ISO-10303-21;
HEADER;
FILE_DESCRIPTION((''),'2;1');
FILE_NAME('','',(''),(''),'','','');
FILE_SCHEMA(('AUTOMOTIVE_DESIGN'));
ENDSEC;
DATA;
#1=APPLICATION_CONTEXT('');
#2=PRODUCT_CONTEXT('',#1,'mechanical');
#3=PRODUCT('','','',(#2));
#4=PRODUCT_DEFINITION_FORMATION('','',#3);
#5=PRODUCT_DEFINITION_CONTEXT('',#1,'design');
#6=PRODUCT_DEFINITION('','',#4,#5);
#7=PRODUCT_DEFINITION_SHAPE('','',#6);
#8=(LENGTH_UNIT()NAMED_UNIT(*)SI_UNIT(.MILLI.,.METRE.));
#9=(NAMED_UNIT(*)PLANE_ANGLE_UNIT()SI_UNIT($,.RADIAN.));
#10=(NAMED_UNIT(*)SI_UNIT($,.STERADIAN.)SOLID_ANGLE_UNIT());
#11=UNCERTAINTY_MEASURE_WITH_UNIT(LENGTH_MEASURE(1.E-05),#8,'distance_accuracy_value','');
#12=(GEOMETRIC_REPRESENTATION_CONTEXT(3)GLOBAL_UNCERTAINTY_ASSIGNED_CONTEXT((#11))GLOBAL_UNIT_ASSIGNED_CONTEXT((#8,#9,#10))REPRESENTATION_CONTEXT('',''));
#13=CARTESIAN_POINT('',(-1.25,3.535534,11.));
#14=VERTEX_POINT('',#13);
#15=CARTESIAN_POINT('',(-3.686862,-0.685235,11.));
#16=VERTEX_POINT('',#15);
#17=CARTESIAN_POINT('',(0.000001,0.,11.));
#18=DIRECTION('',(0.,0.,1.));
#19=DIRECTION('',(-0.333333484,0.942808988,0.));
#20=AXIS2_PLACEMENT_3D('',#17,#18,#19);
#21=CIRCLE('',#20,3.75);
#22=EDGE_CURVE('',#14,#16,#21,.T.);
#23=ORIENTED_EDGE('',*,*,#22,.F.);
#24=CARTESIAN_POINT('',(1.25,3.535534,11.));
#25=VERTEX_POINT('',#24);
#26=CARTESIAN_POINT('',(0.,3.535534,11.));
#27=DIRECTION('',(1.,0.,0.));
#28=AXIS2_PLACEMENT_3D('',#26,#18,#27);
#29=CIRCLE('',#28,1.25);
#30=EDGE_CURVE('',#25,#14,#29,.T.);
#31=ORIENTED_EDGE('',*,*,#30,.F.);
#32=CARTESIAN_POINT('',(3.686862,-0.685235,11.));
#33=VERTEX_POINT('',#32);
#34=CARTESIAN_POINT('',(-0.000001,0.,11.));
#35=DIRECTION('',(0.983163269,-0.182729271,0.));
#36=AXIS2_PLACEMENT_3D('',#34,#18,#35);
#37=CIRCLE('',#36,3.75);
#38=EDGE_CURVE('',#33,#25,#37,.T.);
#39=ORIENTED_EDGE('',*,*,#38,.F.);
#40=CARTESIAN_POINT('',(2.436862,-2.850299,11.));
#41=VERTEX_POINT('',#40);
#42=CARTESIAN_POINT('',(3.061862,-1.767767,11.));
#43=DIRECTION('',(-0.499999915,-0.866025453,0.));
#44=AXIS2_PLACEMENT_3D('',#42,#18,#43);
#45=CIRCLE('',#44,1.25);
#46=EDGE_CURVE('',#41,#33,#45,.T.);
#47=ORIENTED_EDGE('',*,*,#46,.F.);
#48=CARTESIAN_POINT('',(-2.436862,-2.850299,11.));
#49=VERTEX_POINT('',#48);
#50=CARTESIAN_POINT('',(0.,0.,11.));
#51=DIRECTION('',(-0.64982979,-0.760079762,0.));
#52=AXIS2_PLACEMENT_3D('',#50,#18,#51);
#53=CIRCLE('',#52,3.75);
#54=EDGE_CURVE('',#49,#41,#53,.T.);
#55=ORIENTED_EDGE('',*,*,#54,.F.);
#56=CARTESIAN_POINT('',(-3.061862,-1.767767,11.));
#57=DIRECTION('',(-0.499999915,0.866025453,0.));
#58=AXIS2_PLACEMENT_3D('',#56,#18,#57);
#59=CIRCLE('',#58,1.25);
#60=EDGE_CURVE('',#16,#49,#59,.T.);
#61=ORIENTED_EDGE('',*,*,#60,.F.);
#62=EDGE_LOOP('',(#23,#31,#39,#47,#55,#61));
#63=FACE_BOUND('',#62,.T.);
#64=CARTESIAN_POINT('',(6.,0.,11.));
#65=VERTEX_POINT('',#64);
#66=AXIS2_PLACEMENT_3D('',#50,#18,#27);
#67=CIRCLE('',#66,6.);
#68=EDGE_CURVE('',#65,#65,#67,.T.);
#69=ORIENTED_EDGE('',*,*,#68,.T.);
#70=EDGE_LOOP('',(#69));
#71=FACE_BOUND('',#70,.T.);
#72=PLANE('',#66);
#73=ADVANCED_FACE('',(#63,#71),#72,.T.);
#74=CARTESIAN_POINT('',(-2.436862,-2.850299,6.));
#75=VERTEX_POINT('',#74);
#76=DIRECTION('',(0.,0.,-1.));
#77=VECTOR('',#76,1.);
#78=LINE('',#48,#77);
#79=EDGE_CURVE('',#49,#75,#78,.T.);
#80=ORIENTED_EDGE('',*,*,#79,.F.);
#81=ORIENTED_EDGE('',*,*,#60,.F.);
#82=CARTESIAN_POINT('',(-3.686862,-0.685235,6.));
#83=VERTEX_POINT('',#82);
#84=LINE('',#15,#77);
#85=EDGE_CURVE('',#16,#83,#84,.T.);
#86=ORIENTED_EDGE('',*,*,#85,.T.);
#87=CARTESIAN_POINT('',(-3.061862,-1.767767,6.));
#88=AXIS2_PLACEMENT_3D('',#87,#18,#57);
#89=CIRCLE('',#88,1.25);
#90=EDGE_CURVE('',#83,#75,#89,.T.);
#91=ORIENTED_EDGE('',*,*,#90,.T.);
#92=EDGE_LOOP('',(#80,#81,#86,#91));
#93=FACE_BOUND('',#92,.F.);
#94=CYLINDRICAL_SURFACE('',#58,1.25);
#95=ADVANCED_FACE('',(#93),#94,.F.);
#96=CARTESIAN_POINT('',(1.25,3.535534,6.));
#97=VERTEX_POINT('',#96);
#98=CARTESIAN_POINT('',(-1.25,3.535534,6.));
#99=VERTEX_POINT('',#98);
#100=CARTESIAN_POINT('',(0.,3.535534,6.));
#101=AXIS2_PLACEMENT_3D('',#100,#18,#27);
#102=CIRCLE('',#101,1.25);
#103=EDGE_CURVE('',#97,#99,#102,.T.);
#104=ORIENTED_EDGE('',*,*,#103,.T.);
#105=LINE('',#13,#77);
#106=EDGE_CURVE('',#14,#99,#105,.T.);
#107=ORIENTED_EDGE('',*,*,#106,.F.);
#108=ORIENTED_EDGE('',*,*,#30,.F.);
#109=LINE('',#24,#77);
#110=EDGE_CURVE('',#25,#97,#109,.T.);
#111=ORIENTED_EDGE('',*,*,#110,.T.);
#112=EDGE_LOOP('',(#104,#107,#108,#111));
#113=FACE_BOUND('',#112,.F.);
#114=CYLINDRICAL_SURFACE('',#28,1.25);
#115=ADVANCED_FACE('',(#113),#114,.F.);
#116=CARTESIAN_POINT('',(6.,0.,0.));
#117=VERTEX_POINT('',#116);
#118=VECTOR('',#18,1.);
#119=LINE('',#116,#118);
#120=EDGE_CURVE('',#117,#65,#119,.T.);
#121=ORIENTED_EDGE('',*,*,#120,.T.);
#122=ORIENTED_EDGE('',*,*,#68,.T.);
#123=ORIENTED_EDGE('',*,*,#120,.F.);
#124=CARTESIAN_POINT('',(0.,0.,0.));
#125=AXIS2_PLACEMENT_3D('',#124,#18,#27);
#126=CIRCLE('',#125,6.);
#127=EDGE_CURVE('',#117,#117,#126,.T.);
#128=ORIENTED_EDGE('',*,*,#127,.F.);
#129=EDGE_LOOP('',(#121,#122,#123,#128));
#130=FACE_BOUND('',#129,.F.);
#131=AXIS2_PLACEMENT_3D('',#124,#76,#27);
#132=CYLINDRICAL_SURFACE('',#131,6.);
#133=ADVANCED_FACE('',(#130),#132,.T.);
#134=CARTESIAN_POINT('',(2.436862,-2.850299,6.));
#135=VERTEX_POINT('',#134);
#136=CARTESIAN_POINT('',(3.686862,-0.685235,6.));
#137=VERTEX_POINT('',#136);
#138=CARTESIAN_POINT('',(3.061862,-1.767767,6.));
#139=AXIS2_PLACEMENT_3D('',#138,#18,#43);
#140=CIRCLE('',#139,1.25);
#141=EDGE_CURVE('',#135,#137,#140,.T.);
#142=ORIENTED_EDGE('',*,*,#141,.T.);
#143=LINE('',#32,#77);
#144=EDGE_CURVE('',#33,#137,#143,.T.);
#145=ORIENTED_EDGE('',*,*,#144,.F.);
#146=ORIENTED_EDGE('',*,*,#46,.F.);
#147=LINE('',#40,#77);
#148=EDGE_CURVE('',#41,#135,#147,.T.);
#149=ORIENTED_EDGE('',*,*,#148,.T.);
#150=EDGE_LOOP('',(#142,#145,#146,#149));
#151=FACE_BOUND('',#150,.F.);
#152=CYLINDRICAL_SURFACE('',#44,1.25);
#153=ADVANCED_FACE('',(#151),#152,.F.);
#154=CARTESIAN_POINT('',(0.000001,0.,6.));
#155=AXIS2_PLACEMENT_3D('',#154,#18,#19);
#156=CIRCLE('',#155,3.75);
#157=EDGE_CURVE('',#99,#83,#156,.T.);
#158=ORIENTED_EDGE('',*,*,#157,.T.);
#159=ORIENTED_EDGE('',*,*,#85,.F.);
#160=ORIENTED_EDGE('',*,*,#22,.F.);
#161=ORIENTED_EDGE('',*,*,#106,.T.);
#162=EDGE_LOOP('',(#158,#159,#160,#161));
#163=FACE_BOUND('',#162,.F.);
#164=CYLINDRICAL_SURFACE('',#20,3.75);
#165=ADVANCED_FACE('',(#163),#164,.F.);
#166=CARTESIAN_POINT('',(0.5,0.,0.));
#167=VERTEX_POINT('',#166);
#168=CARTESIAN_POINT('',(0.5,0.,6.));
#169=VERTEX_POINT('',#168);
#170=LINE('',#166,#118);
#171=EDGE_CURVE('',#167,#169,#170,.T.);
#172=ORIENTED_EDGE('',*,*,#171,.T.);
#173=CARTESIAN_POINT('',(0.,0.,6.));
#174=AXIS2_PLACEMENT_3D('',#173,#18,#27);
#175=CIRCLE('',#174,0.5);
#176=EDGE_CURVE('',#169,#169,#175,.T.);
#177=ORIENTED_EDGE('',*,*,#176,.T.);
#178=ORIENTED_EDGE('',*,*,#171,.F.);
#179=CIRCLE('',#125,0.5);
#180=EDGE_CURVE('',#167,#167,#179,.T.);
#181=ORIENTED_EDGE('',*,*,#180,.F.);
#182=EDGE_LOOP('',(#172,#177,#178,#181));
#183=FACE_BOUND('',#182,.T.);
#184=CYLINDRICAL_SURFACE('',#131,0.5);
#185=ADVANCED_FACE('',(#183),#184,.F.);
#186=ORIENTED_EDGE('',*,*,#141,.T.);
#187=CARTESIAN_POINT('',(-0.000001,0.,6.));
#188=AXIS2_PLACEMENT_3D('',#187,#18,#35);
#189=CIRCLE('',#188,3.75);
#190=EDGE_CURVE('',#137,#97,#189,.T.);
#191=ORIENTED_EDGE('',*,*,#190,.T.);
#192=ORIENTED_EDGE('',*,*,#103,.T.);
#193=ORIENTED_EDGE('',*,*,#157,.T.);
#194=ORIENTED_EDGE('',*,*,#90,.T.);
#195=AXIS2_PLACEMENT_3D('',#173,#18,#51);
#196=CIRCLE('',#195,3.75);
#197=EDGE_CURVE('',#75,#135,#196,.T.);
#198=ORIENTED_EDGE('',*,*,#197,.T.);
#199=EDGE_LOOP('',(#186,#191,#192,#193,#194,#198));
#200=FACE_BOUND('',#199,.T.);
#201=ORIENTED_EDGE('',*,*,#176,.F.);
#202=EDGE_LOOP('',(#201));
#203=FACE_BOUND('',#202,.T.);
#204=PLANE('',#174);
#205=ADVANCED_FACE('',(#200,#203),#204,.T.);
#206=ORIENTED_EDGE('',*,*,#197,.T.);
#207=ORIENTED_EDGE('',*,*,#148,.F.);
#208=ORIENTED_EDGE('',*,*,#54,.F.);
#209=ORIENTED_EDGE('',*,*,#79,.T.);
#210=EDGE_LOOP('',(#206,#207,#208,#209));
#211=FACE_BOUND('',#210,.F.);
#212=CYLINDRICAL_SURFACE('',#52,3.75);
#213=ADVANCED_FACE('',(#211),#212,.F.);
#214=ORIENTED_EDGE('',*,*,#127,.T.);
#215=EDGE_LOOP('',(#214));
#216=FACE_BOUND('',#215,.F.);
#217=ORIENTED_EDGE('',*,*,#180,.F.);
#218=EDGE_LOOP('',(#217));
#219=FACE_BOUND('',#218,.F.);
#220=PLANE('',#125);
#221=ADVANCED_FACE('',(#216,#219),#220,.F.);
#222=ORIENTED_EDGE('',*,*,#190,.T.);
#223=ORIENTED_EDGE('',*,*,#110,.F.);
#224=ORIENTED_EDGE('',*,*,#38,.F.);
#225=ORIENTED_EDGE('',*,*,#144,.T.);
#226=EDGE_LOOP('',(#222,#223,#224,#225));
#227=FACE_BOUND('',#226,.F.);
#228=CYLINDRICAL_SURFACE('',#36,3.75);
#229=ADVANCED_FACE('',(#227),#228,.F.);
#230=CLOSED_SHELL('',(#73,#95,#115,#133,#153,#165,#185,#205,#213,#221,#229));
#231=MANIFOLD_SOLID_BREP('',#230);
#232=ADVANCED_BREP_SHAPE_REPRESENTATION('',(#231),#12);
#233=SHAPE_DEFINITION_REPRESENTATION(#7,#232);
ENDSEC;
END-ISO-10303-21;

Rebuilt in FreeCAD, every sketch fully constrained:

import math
import FreeCAD as App
import Part
import Sketcher
from FreeCAD import Vector
Q = App.Units.Quantity

doc = App.newDocument("Part")
params = doc.addObject("Spreadsheet::Sheet", "Params")
for row, (alias, value) in enumerate([
    ("sketch1_diameter", "12 mm"),
    ("sketch1_diameter2", "1 mm"),
    ("pad1_length", "11 mm"),
    ("sketch2_diameter", "1 mm"),
    ("sketch2_radius", "3.75 mm"),
    ("sketch2_radius2", "1.25 mm"),
    ("pocket1_length", "5 mm"),
], start=1):
    params.set(f"A{row}", alias)
    params.set(f"B{row}", "=" + value)
    params.setAlias(f"B{row}", alias)

body = doc.addObject("PartDesign::Body", "Body")

# Sketch on XY plane
sketch1 = body.newObject("Sketcher::SketchObject", "Sketch")
sketch1.AttachmentSupport = (doc.getObject("XY_Plane"), [""])
sketch1.MapMode = "FlatFace"
sketch1.addGeometry([
    Part.Circle(Vector(0, 0, 0), Vector(0, 0, 1), 6),
    Part.Circle(Vector(0, 0, 0), Vector(0, 0, 1), 0.5),
], False)
sketch1.addConstraint([
    Sketcher.Constraint("Coincident", 0, 3, -1, 1),
    Sketcher.Constraint("Coincident", 1, 3, -1, 1),
    Sketcher.Constraint("Diameter", 0, Q("12 mm")),
    Sketcher.Constraint("Diameter", 1, Q("1 mm")),
])
sketch1.setExpression("Constraints[2]", "Params.sketch1_diameter")
sketch1.setExpression("Constraints[3]", "Params.sketch1_diameter2")
pad1 = body.newObject("PartDesign::Pad", "Pad")
pad1.Profile = sketch1
pad1.setExpression("Length", "Params.pad1_length")

# Sketch on XY plane
sketch2 = body.newObject("Sketcher::SketchObject", "Sketch001")
sketch2.AttachmentSupport = (doc.getObject("XY_Plane"), [""])
sketch2.MapMode = "FlatFace"
sketch2.AttachmentOffset = App.Placement(Vector(0, 0, 11), App.Rotation())
sketch2.addGeometry([
    Part.ArcOfCircle(Part.Circle(Vector(0, 0, 0), Vector(0, 0, 1), 3.8), math.radians(109), math.radians(191)),  # 0
    Part.ArcOfCircle(Part.Circle(Vector(-3.1, -1.8, 0), Vector(0, 0, 1), 1.3), math.radians(120), math.radians(300)),  # 1
    Part.ArcOfCircle(Part.Circle(Vector(0, 0, 0), Vector(0, 0, 1), 3.8), math.radians(-131), math.radians(-49)),  # 2
    Part.ArcOfCircle(Part.Circle(Vector(3.1, -1.8, 0), Vector(0, 0, 1), 1.3), math.radians(-120), math.radians(60)),  # 3
    Part.ArcOfCircle(Part.Circle(Vector(0, 0, 0), Vector(0, 0, 1), 3.8), math.radians(-11), math.radians(71)),  # 4
    Part.ArcOfCircle(Part.Circle(Vector(0, 3.5, 0), Vector(0, 0, 1), 1.2), math.radians(0), math.radians(180)),  # 5
    Part.Circle(Vector(0, 0, 0), Vector(0, 0, 1), 0.5),  # 6
], False)
sketch2.addConstraint([
    Sketcher.Constraint("Coincident", 0, 2, 1, 1),
    Sketcher.Constraint("Coincident", 1, 2, 2, 1),
    Sketcher.Constraint("Coincident", 2, 2, 3, 1),
    Sketcher.Constraint("Coincident", 3, 2, 4, 1),
    Sketcher.Constraint("Coincident", 4, 2, 5, 1),
    Sketcher.Constraint("Coincident", 5, 2, 0, 1),
    Sketcher.Constraint("Coincident", 0, 3, -1, 1),
    Sketcher.Constraint("Coincident", 2, 3, -1, 1),
    Sketcher.Constraint("Coincident", 4, 3, -1, 1),
    Sketcher.Constraint("Coincident", 6, 3, -1, 1),
    Sketcher.Constraint("Equal", 0, 2),
    Sketcher.Constraint("Equal", 1, 3),
    Sketcher.Constraint("Equal", 2, 4),
    Sketcher.Constraint("Equal", 3, 5),
    Sketcher.Constraint("Symmetric", 1, 3, 3, 3, -2),
    Sketcher.Constraint("PointOnObject", 5, 3, -2),
    Sketcher.Constraint("Horizontal", 5, 3, 4, 2),
    Sketcher.Constraint("Diameter", 6, Q("1 mm")),
    Sketcher.Constraint("Radius", 0, Q("3.75 mm")),
    Sketcher.Constraint("Radius", 1, Q("1.25 mm")),
    Sketcher.Constraint("DistanceX", 0, 2, 1, 2, Q("1.25 mm")),
    Sketcher.Constraint("DistanceX", 0, 2, 1, 3, Q("0.625 mm")),
])
sketch2.setExpression("Constraints[17]", "Params.sketch2_diameter")
sketch2.setExpression("Constraints[18]", "Params.sketch2_radius")
sketch2.setExpression("Constraints[19]", "Params.sketch2_radius2")
pocket1 = body.newObject("PartDesign::Pocket", "Pocket")
pocket1.Profile = sketch2
pocket1.setExpression("Length", "Params.pocket1_length")

doc.recompute()
